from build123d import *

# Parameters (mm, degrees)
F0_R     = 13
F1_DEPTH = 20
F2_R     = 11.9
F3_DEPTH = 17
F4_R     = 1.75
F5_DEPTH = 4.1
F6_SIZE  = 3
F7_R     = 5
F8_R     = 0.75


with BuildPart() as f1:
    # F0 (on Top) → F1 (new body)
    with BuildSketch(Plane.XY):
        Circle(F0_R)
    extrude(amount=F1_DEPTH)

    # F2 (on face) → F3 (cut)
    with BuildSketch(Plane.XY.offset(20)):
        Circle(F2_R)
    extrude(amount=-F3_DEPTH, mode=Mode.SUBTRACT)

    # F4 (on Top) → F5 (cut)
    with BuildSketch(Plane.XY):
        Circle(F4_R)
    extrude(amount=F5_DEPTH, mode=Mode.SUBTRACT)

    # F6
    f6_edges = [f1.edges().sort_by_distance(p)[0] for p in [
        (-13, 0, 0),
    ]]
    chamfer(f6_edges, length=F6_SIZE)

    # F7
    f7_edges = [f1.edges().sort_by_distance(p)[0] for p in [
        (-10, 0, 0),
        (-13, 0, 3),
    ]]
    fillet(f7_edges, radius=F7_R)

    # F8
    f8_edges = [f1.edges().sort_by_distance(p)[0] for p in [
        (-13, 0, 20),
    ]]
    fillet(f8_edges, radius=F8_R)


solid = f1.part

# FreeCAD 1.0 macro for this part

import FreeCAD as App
import Part
import Sketcher
Q = App.Units.Quantity


def edges_at(feature, points):
    """Names of the edges that pass closest to the given points."""
    edges = feature.Shape.Edges
    near = lambda p: min(range(len(edges)), key=lambda i: edges[i].distToShape(Part.Vertex(*p))[0])
    return sorted({f"Edge{near(p) + 1}" for p in points})

doc = App.newDocument("Part")
params = doc.addObject("Spreadsheet::Sheet", "Params")
for row, (alias, value) in enumerate([
    ("sketch1_diameter", "26 mm"),
    ("pad1_length", "20 mm"),
    ("sketch2_diameter", "23.8 mm"),
    ("pocket1_length", "17 mm"),
    ("sketch3_diameter", "3.5 mm"),
    ("pocket2_length", "4.1 mm"),
    ("chamfer_size", "3 mm"),
    ("fillet_radius", "5 mm"),
    ("fillet2_radius", "0.75 mm"),
], start=1):
    params.set(f"A{row}", alias)
    params.set(f"B{row}", "=" + value)
    params.setAlias(f"B{row}", alias)

body = doc.addObject("PartDesign::Body", "Body")

# Sketch on XY plane
sketch1 = body.newObject("Sketcher::SketchObject", "Sketch")
sketch1.AttachmentSupport = (doc.getObject("XY_Plane"), [""])
sketch1.MapMode = "FlatFace"
sketch1.addGeometry(Part.Circle(App.Vector(0, 0, 0), App.Vector(0, 0, 1), 13), False)
sketch1.addConstraint(Sketcher.Constraint("Coincident", 0, 3, -1, 1))
sketch1.addConstraint(Sketcher.Constraint("Diameter", 0, Q("26 mm")))
sketch1.setExpression("Constraints[1]", "Params.sketch1_diameter")
pad1 = body.newObject("PartDesign::Pad", "Pad")
pad1.Profile = sketch1
pad1.setExpression("Length", "Params.pad1_length")

# Sketch on XY plane
sketch2 = body.newObject("Sketcher::SketchObject", "Sketch001")
sketch2.AttachmentSupport = (doc.getObject("XY_Plane"), [""])
sketch2.MapMode = "FlatFace"
sketch2.AttachmentOffset = App.Placement(App.Vector(0, 0, 20), App.Rotation())
sketch2.addGeometry(Part.Circle(App.Vector(0, 0, 0), App.Vector(0, 0, 1), 11.9), False)
sketch2.addConstraint(Sketcher.Constraint("Coincident", 0, 3, -1, 1))
sketch2.addConstraint(Sketcher.Constraint("Diameter", 0, Q("23.8 mm")))
sketch2.setExpression("Constraints[1]", "Params.sketch2_diameter")
pocket1 = body.newObject("PartDesign::Pocket", "Pocket")
pocket1.Profile = sketch2
pocket1.setExpression("Length", "Params.pocket1_length")

# Sketch on XY plane
sketch3 = body.newObject("Sketcher::SketchObject", "Sketch002")
sketch3.AttachmentSupport = (doc.getObject("XY_Plane"), [""])
sketch3.MapMode = "FlatFace"
sketch3.addGeometry(Part.Circle(App.Vector(0, 0, 0), App.Vector(0, 0, 1), 1.75), False)
sketch3.addConstraint(Sketcher.Constraint("Coincident", 0, 3, -1, 1))
sketch3.addConstraint(Sketcher.Constraint("Diameter", 0, Q("3.5 mm")))
sketch3.setExpression("Constraints[1]", "Params.sketch3_diameter")
pocket2 = body.newObject("PartDesign::Pocket", "Pocket001")
pocket2.Profile = sketch3
pocket2.setExpression("Length", "Params.pocket2_length")
pocket2.Reversed = True
doc.recompute()

chamfer = body.newObject("PartDesign::Chamfer", "Chamfer")
chamfer.Base = (pocket2, edges_at(pocket2, [(-13, 0, 0)]))
chamfer.setExpression("Size", "Params.chamfer_size")
doc.recompute()

fillet = body.newObject("PartDesign::Fillet", "Fillet")
fillet.Base = (chamfer, edges_at(chamfer, [(-10, 0, 0), (-13, 0, 3)]))
fillet.setExpression("Radius", "Params.fillet_radius")
doc.recompute()

fillet2 = body.newObject("PartDesign::Fillet", "Fillet001")
fillet2.Base = (fillet, edges_at(fillet, [(-13, 0, 20)]))
fillet2.setExpression("Radius", "Params.fillet2_radius")

doc.recompute()
